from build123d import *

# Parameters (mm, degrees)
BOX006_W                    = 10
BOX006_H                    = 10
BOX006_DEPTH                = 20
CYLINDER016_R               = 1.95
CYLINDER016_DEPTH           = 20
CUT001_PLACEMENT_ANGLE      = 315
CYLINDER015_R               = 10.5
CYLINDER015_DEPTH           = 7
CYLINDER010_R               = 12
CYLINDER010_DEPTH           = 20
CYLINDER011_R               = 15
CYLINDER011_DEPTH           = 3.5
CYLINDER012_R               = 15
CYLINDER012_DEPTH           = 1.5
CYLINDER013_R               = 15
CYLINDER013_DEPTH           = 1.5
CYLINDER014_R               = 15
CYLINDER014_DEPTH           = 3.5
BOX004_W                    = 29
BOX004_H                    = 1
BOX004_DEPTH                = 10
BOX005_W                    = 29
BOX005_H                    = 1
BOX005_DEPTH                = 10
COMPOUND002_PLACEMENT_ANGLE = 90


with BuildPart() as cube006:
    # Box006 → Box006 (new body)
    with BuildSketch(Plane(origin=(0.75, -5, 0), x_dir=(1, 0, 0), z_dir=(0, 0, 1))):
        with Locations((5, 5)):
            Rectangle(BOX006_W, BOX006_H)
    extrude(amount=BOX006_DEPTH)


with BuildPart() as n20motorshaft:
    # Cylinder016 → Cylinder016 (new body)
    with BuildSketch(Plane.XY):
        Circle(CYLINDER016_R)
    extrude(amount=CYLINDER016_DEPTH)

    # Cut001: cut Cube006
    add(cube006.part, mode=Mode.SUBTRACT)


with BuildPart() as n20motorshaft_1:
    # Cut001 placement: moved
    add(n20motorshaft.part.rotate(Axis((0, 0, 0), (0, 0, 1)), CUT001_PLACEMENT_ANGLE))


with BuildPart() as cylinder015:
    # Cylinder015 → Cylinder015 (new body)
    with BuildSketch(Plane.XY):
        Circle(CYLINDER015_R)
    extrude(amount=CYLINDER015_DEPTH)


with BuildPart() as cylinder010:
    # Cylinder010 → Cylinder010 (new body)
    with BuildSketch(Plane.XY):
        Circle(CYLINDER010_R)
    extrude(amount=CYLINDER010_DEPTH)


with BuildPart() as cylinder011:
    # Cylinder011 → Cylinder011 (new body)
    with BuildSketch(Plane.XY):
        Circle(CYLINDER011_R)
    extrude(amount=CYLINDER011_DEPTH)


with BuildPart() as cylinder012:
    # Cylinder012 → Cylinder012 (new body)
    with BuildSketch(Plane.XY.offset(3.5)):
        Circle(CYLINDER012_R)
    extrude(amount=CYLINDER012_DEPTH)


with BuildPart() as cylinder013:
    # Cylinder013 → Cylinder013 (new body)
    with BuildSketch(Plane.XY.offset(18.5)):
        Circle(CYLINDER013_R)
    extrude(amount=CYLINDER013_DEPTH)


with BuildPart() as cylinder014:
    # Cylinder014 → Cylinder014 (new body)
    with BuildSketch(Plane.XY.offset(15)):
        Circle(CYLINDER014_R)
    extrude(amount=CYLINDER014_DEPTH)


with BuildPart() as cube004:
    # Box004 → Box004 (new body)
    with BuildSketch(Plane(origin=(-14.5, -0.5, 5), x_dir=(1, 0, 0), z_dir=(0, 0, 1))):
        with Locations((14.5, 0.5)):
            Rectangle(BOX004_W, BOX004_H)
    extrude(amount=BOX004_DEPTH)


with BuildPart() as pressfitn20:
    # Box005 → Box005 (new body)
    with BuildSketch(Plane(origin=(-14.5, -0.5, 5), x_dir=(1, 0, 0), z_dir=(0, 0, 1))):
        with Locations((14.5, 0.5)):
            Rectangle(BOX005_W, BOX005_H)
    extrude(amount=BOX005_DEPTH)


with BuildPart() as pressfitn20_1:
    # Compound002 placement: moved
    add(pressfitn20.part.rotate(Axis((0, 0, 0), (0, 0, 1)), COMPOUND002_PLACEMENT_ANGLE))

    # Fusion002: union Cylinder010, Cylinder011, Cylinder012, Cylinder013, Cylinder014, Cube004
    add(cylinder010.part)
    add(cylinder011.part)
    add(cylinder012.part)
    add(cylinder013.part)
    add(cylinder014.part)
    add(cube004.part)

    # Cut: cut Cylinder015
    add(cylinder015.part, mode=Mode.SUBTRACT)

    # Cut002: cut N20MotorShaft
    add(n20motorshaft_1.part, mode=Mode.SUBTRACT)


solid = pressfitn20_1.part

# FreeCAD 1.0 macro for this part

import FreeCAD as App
import Part
import Sketcher

V = App.Vector

doc = App.newDocument("Part")
params = doc.addObject("Spreadsheet::Sheet", "Params")
for row, (alias, value) in enumerate([
    ("sketch1_width", "10 mm"),
    ("pad1_length", "20 mm"),
    ("sketch2_diameter", "3.9 mm"),
    ("pad2_length", "20 mm"),
    ("sketch3_diameter", "21 mm"),
    ("pad3_length", "7 mm"),
    ("sketch4_diameter", "24 mm"),
    ("pad4_length", "20 mm"),
    ("sketch5_diameter", "30 mm"),
    ("pad5_length", "3.5 mm"),
    ("sketch6_diameter", "30 mm"),
    ("pad6_length", "1.5 mm"),
    ("sketch7_diameter", "30 mm"),
    ("pad7_length", "1.5 mm"),
    ("sketch8_diameter", "30 mm"),
    ("pad8_length", "3.5 mm"),
    ("sketch9_width", "29 mm"),
    ("sketch9_height", "1 mm"),
    ("pad9_length", "10 mm"),
    ("sketch10_width", "29 mm"),
    ("sketch10_height", "1 mm"),
    ("pad10_length", "10 mm"),
], start=1):
    params.set(f"A{row}", alias)
    params.set(f"B{row}", "=" + value)
    params.setAlias(f"B{row}", alias)

body = doc.addObject("PartDesign::Body", "Body")

# Sketch on XY plane
sketch1 = doc.addObject("Sketcher::SketchObject", "Sketch")
body.addObject(sketch1)
sketch1.AttachmentSupport = (doc.XY_Plane, [""])
sketch1.MapMode = "FlatFace"
sketch1.addGeometry(Part.LineSegment(V(0.75, 5, 0), V(0.75, -5, 0)), False)
sketch1.addGeometry(Part.LineSegment(V(0.75, -5, 0), V(10.75, -5, 0)), False)
sketch1.addGeometry(Part.LineSegment(V(10.75, -5, 0), V(10.75, 5, 0)), False)
sketch1.addGeometry(Part.LineSegment(V(10.75, 5, 0), V(0.75, 5, 0)), False)
sketch1.addConstraint(Sketcher.Constraint("Coincident", 0, 2, 1, 1))
sketch1.addConstraint(Sketcher.Constraint("Coincident", 1, 2, 2, 1))
sketch1.addConstraint(Sketcher.Constraint("Coincident", 2, 2, 3, 1))
sketch1.addConstraint(Sketcher.Constraint("Coincident", 3, 2, 0, 1))
sketch1.addConstraint(Sketcher.Constraint("Vertical", 0))
sketch1.addConstraint(Sketcher.Constraint("Horizontal", 1))
sketch1.addConstraint(Sketcher.Constraint("Vertical", 2))
sketch1.addConstraint(Sketcher.Constraint("Horizontal", 3))
sketch1.addConstraint(Sketcher.Constraint("Equal", 3, 0))
sketch1.addConstraint(Sketcher.Constraint("DistanceX", 1, 1, 1, 2, 10.0))
sketch1.addConstraint(Sketcher.Constraint("DistanceY", 0, 2, -1, 1, 5.0))
sketch1.addConstraint(Sketcher.Constraint("DistanceX", -1, 1, 0, 2, 0.75))
sketch1.setExpression("Constraints[9]", "Params.sketch1_width")
pad1 = doc.addObject("PartDesign::Pad", "Pad")
body.addObject(pad1)
pad1.Profile = sketch1
pad1.setExpression("Length", "Params.pad1_length")
body2 = doc.addObject("PartDesign::Body", "Body001")

# Sketch on XY plane
sketch2 = doc.addObject("Sketcher::SketchObject", "Sketch001")
body2.addObject(sketch2)
sketch2.AttachmentSupport = (doc.getObject("XY_Plane001"), [""])
sketch2.MapMode = "FlatFace"
sketch2.addGeometry(Part.Circle(V(0, 0, 0), V(0, 0, 1), 1.95), False)
sketch2.addConstraint(Sketcher.Constraint("Coincident", 0, 3, -1, 1))
sketch2.addConstraint(Sketcher.Constraint("Diameter", 0, 3.9))
sketch2.setExpression("Constraints[1]", "Params.sketch2_diameter")
pad2 = doc.addObject("PartDesign::Pad", "Pad001")
body2.addObject(pad2)
pad2.Profile = sketch2
pad2.setExpression("Length", "Params.pad2_length")
doc.recompute()

boolean = doc.addObject("PartDesign::Boolean", "Boolean")
body2.addObject(boolean)
boolean.Type = "Cut"
boolean.addObjects([body])
body3 = doc.addObject("PartDesign::Body", "Body002")
doc.recompute()

body2.Placement = App.Placement(V(0, 0, 0), App.Rotation(V(0, 0, 1), 315))
boolean2 = doc.addObject("PartDesign::Boolean", "Boolean001")
body3.addObject(boolean2)
boolean2.Type = "Fuse"
boolean2.addObjects([body2])
body4 = doc.addObject("PartDesign::Body", "Body003")

# Sketch on XY plane
sketch3 = doc.addObject("Sketcher::SketchObject", "Sketch002")
body4.addObject(sketch3)
sketch3.AttachmentSupport = (doc.getObject("XY_Plane003"), [""])
sketch3.MapMode = "FlatFace"
sketch3.addGeometry(Part.Circle(V(0, 0, 0), V(0, 0, 1), 10.5), False)
sketch3.addConstraint(Sketcher.Constraint("Coincident", 0, 3, -1, 1))
sketch3.addConstraint(Sketcher.Constraint("Diameter", 0, 21.0))
sketch3.setExpression("Constraints[1]", "Params.sketch3_diameter")
pad3 = doc.addObject("PartDesign::Pad", "Pad002")
body4.addObject(pad3)
pad3.Profile = sketch3
pad3.setExpression("Length", "Params.pad3_length")
body5 = doc.addObject("PartDesign::Body", "Body004")

# Sketch on XY plane
sketch4 = doc.addObject("Sketcher::SketchObject", "Sketch003")
body5.addObject(sketch4)
sketch4.AttachmentSupport = (doc.getObject("XY_Plane004"), [""])
sketch4.MapMode = "FlatFace"
sketch4.addGeometry(Part.Circle(V(0, 0, 0), V(0, 0, 1), 12), False)
sketch4.addConstraint(Sketcher.Constraint("Coincident", 0, 3, -1, 1))
sketch4.addConstraint(Sketcher.Constraint("Diameter", 0, 24.0))
sketch4.setExpression("Constraints[1]", "Params.sketch4_diameter")
pad4 = doc.addObject("PartDesign::Pad", "Pad003")
body5.addObject(pad4)
pad4.Profile = sketch4
pad4.setExpression("Length", "Params.pad4_length")
body6 = doc.addObject("PartDesign::Body", "Body005")

# Sketch on XY plane
sketch5 = doc.addObject("Sketcher::SketchObject", "Sketch004")
body6.addObject(sketch5)
sketch5.AttachmentSupport = (doc.getObject("XY_Plane005"), [""])
sketch5.MapMode = "FlatFace"
sketch5.addGeometry(Part.Circle(V(0, 0, 0), V(0, 0, 1), 15), False)
sketch5.addConstraint(Sketcher.Constraint("Coincident", 0, 3, -1, 1))
sketch5.addConstraint(Sketcher.Constraint("Diameter", 0, 30.0))
sketch5.setExpression("Constraints[1]", "Params.sketch5_diameter")
pad5 = doc.addObject("PartDesign::Pad", "Pad004")
body6.addObject(pad5)
pad5.Profile = sketch5
pad5.setExpression("Length", "Params.pad5_length")
body7 = doc.addObject("PartDesign::Body", "Body006")

# Sketch on XY plane
sketch6 = doc.addObject("Sketcher::SketchObject", "Sketch005")
body7.addObject(sketch6)
sketch6.AttachmentSupport = (doc.getObject("XY_Plane006"), [""])
sketch6.MapMode = "FlatFace"
sketch6.AttachmentOffset = App.Placement(V(0, 0, 3.5), App.Rotation())
sketch6.addGeometry(Part.Circle(V(0, 0, 0), V(0, 0, 1), 15), False)
sketch6.addConstraint(Sketcher.Constraint("Coincident", 0, 3, -1, 1))
sketch6.addConstraint(Sketcher.Constraint("Diameter", 0, 30.0))
sketch6.setExpression("Constraints[1]", "Params.sketch6_diameter")
pad6 = doc.addObject("PartDesign::Pad", "Pad005")
body7.addObject(pad6)
pad6.Profile = sketch6
pad6.setExpression("Length", "Params.pad6_length")
body8 = doc.addObject("PartDesign::Body", "Body007")

# Sketch on XY plane
sketch7 = doc.addObject("Sketcher::SketchObject", "Sketch006")
body8.addObject(sketch7)
sketch7.AttachmentSupport = (doc.getObject("XY_Plane007"), [""])
sketch7.MapMode = "FlatFace"
sketch7.AttachmentOffset = App.Placement(V(0, 0, 18.5), App.Rotation())
sketch7.addGeometry(Part.Circle(V(0, 0, 0), V(0, 0, 1), 15), False)
sketch7.addConstraint(Sketcher.Constraint("Coincident", 0, 3, -1, 1))
sketch7.addConstraint(Sketcher.Constraint("Diameter", 0, 30.0))
sketch7.setExpression("Constraints[1]", "Params.sketch7_diameter")
pad7 = doc.addObject("PartDesign::Pad", "Pad006")
body8.addObject(pad7)
pad7.Profile = sketch7
pad7.setExpression("Length", "Params.pad7_length")
body9 = doc.addObject("PartDesign::Body", "Body008")

# Sketch on XY plane
sketch8 = doc.addObject("Sketcher::SketchObject", "Sketch007")
body9.addObject(sketch8)
sketch8.AttachmentSupport = (doc.getObject("XY_Plane008"), [""])
sketch8.MapMode = "FlatFace"
sketch8.AttachmentOffset = App.Placement(V(0, 0, 15), App.Rotation())
sketch8.addGeometry(Part.Circle(V(0, 0, 0), V(0, 0, 1), 15), False)
sketch8.addConstraint(Sketcher.Constraint("Coincident", 0, 3, -1, 1))
sketch8.addConstraint(Sketcher.Constraint("Diameter", 0, 30.0))
sketch8.setExpression("Constraints[1]", "Params.sketch8_diameter")
pad8 = doc.addObject("PartDesign::Pad", "Pad007")
body9.addObject(pad8)
pad8.Profile = sketch8
pad8.setExpression("Length", "Params.pad8_length")
body10 = doc.addObject("PartDesign::Body", "Body009")

# Sketch on XY plane
sketch9 = doc.addObject("Sketcher::SketchObject", "Sketch008")
body10.addObject(sketch9)
sketch9.AttachmentSupport = (doc.getObject("XY_Plane009"), [""])
sketch9.MapMode = "FlatFace"
sketch9.AttachmentOffset = App.Placement(V(0, 0, 5), App.Rotation())
sketch9.addGeometry(Part.LineSegment(V(-14.5, 0.5, 0), V(-14.5, -0.5, 0)), False)
sketch9.addGeometry(Part.LineSegment(V(-14.5, -0.5, 0), V(14.5, -0.5, 0)), False)
sketch9.addGeometry(Part.LineSegment(V(14.5, -0.5, 0), V(14.5, 0.5, 0)), False)
sketch9.addGeometry(Part.LineSegment(V(14.5, 0.5, 0), V(-14.5, 0.5, 0)), False)
sketch9.addConstraint(Sketcher.Constraint("Coincident", 0, 2, 1, 1))
sketch9.addConstraint(Sketcher.Constraint("Coincident", 1, 2, 2, 1))
sketch9.addConstraint(Sketcher.Constraint("Coincident", 2, 2, 3, 1))
sketch9.addConstraint(Sketcher.Constraint("Coincident", 3, 2, 0, 1))
sketch9.addConstraint(Sketcher.Constraint("Vertical", 0))
sketch9.addConstraint(Sketcher.Constraint("Horizontal", 1))
sketch9.addConstraint(Sketcher.Constraint("Vertical", 2))
sketch9.addConstraint(Sketcher.Constraint("Horizontal", 3))
sketch9.addConstraint(Sketcher.Constraint("Symmetric", 0, 2, 2, 2, -1, 1))
sketch9.addConstraint(Sketcher.Constraint("DistanceX", 1, 1, 1, 2, 29.0))
sketch9.addConstraint(Sketcher.Constraint("DistanceY", 0, 2, 0, 1, 1.0))
sketch9.setExpression("Constraints[9]", "Params.sketch9_width")
sketch9.setExpression("Constraints[10]", "Params.sketch9_height")
pad9 = doc.addObject("PartDesign::Pad", "Pad008")
body10.addObject(pad9)
pad9.Profile = sketch9
pad9.setExpression("Length", "Params.pad9_length")
body11 = doc.addObject("PartDesign::Body", "Body010")

# Sketch on XY plane
sketch10 = doc.addObject("Sketcher::SketchObject", "Sketch009")
body11.addObject(sketch10)
sketch10.AttachmentSupport = (doc.getObject("XY_Plane010"), [""])
sketch10.MapMode = "FlatFace"
sketch10.AttachmentOffset = App.Placement(V(0, 0, 5), App.Rotation())
sketch10.addGeometry(Part.LineSegment(V(-14.5, 0.5, 0), V(-14.5, -0.5, 0)), False)
sketch10.addGeometry(Part.LineSegment(V(-14.5, -0.5, 0), V(14.5, -0.5, 0)), False)
sketch10.addGeometry(Part.LineSegment(V(14.5, -0.5, 0), V(14.5, 0.5, 0)), False)
sketch10.addGeometry(Part.LineSegment(V(14.5, 0.5, 0), V(-14.5, 0.5, 0)), False)
sketch10.addConstraint(Sketcher.Constraint("Coincident", 0, 2, 1, 1))
sketch10.addConstraint(Sketcher.Constraint("Coincident", 1, 2, 2, 1))
sketch10.addConstraint(Sketcher.Constraint("Coincident", 2, 2, 3, 1))
sketch10.addConstraint(Sketcher.Constraint("Coincident", 3, 2, 0, 1))
sketch10.addConstraint(Sketcher.Constraint("Vertical", 0))
sketch10.addConstraint(Sketcher.Constraint("Horizontal", 1))
sketch10.addConstraint(Sketcher.Constraint("Vertical", 2))
sketch10.addConstraint(Sketcher.Constraint("Horizontal", 3))
sketch10.addConstraint(Sketcher.Constraint("Symmetric", 0, 2, 2, 2, -1, 1))
sketch10.addConstraint(Sketcher.Constraint("DistanceX", 1, 1, 1, 2, 29.0))
sketch10.addConstraint(Sketcher.Constraint("DistanceY", 0, 2, 0, 1, 1.0))
sketch10.setExpression("Constraints[9]", "Params.sketch10_width")
sketch10.setExpression("Constraints[10]", "Params.sketch10_height")
pad10 = doc.addObject("PartDesign::Pad", "Pad009")
body11.addObject(pad10)
pad10.Profile = sketch10
pad10.setExpression("Length", "Params.pad10_length")
body12 = doc.addObject("PartDesign::Body", "Body011")
doc.recompute()

body11.Placement = App.Placement(V(0, 0, 0), App.Rotation(V(0, 0, 1), 90))
boolean3 = doc.addObject("PartDesign::Boolean", "Boolean002")
body12.addObject(boolean3)
boolean3.Type = "Fuse"
boolean3.addObjects([body11])
doc.recompute()

boolean4 = doc.addObject("PartDesign::Boolean", "Boolean003")
body12.addObject(boolean4)
boolean4.Type = "Fuse"
boolean4.addObjects([body5])
doc.recompute()

boolean5 = doc.addObject("PartDesign::Boolean", "Boolean004")
body12.addObject(boolean5)
boolean5.Type = "Fuse"
boolean5.addObjects([body6])
doc.recompute()

boolean6 = doc.addObject("PartDesign::Boolean", "Boolean005")
body12.addObject(boolean6)
boolean6.Type = "Fuse"
boolean6.addObjects([body7])
doc.recompute()

boolean7 = doc.addObject("PartDesign::Boolean", "Boolean006")
body12.addObject(boolean7)
boolean7.Type = "Fuse"
boolean7.addObjects([body8])
doc.recompute()

boolean8 = doc.addObject("PartDesign::Boolean", "Boolean007")
body12.addObject(boolean8)
boolean8.Type = "Fuse"
boolean8.addObjects([body9])
doc.recompute()

boolean9 = doc.addObject("PartDesign::Boolean", "Boolean008")
body12.addObject(boolean9)
boolean9.Type = "Fuse"
boolean9.addObjects([body10])
doc.recompute()

boolean10 = doc.addObject("PartDesign::Boolean", "Boolean009")
body12.addObject(boolean10)
boolean10.Type = "Cut"
boolean10.addObjects([body4])
doc.recompute()

boolean11 = doc.addObject("PartDesign::Boolean", "Boolean010")
body12.addObject(boolean11)
boolean11.Type = "Cut"
boolean11.addObjects([body3])

doc.recompute()
